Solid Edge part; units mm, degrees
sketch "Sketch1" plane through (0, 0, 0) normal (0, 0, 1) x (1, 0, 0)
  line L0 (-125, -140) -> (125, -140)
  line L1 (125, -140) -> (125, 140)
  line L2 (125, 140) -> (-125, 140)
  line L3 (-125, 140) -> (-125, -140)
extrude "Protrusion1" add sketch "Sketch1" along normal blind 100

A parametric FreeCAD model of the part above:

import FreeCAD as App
import Part
import Sketcher

V = App.Vector
Q = App.Units.Quantity


def add_polygon(sketch, points):
    """Adds a closed chain of lines whose ends are joined by coincident constraints."""
    first, n = sketch.GeometryCount, len(points)
    for a, b in zip(points, points[1:] + points[:1]):
        sketch.addGeometry(Part.LineSegment(App.Vector(*a, 0), App.Vector(*b, 0)), False)
    for i in range(n):
        sketch.addConstraint(Sketcher.Constraint("Coincident", first + i, 2, first + (i + 1) % n, 1))

doc = App.newDocument("Part")
params = doc.addObject("Spreadsheet::Sheet", "Params")
for row, (alias, value) in enumerate([
    ("sketch1_width", "250 mm"),
    ("sketch1_height", "280 mm"),
    ("pad1_length", "100 mm"),
], start=1):
    params.set(f"A{row}", alias)
    params.set(f"B{row}", "=" + value)
    params.setAlias(f"B{row}", alias)

body = doc.addObject("PartDesign::Body", "Body")

sketch1 = doc.addObject("Sketcher::SketchObject", "Sketch")
body.addObject(sketch1)
sketch1.AttachmentSupport = (doc.XY_Plane, [""])
sketch1.MapMode = "FlatFace"
add_polygon(sketch1, [(-125, 140), (-125, -140), (125, -140), (125, 140)])
sketch1.addConstraint(Sketcher.Constraint("Vertical", 0))
sketch1.addConstraint(Sketcher.Constraint("Horizontal", 1))
sketch1.addConstraint(Sketcher.Constraint("Vertical", 2))
sketch1.addConstraint(Sketcher.Constraint("Horizontal", 3))
sketch1.addConstraint(Sketcher.Constraint("Symmetric", 0, 2, 2, 2, -1, 1))
sketch1.addConstraint(Sketcher.Constraint("DistanceX", 1, 1, 1, 2, Q("250 mm")))
sketch1.addConstraint(Sketcher.Constraint("DistanceY", 0, 2, 0, 1, Q("280 mm")))
sketch1.setExpression("Constraints[9]", "Params.sketch1_width")
sketch1.setExpression("Constraints[10]", "Params.sketch1_height")
pad1 = doc.addObject("PartDesign::Pad", "Pad")
body.addObject(pad1)
pad1.Profile = sketch1
pad1.setExpression("Length", "Params.pad1_length")

doc.recompute()
